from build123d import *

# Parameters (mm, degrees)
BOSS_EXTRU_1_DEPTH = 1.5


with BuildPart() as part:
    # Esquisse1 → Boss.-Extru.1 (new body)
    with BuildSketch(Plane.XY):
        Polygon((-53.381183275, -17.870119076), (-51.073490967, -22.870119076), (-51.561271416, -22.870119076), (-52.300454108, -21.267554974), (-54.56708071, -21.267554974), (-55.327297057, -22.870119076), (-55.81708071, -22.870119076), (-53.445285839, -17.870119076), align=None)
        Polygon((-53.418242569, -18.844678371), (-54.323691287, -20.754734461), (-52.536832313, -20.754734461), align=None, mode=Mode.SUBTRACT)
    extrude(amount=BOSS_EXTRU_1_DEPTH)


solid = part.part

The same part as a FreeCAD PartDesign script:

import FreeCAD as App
import Part
import Sketcher

V = App.Vector


def add_polygon(sketch, points):
    """Adds a closed chain of lines whose ends are joined by coincident constraints."""
    first, n = sketch.GeometryCount, len(points)
    for a, b in zip(points, points[1:] + points[:1]):
        sketch.addGeometry(Part.LineSegment(App.Vector(*a, 0), App.Vector(*b, 0)), False)
    for i in range(n):
        sketch.addConstraint(Sketcher.Constraint("Coincident", first + i, 2, first + (i + 1) % n, 1))

doc = App.newDocument("Part")
body = doc.addObject("PartDesign::Body", "Body")

# Sketch on XY plane
sketch1 = body.newObject("Sketcher::SketchObject", "Sketch")
sketch1.AttachmentSupport = (doc.getObject("XY_Plane"), [""])
sketch1.MapMode = "FlatFace"
add_polygon(sketch1, [(-51.07, -22.87), (-53.38, -17.87), (-53.45, -17.87), (-55.82, -22.87), (-55.33, -22.87), (-54.57, -21.27), (-52.3, -21.27), (-51.56, -22.87)])  # lines 0-7
add_polygon(sketch1, [(-53.42, -18.84), (-52.54, -20.75), (-54.32, -20.75)])  # lines 8-10
sketch1.addConstraint(Sketcher.Constraint("Horizontal", 1))
sketch1.addConstraint(Sketcher.Constraint("Horizontal", 3))
sketch1.addConstraint(Sketcher.Constraint("Horizontal", 5))
sketch1.addConstraint(Sketcher.Constraint("Horizontal", 7))
sketch1.addConstraint(Sketcher.Constraint("Horizontal", 9))
sketch1.addConstraint(Sketcher.Constraint("Horizontal", 3, 2, 6, 2))
sketch1.addConstraint(Sketcher.Constraint("DistanceY", 2, 2, 1, 2, 5.0))
sketch1.addConstraint(Sketcher.Constraint("DistanceX", 2, 2, 4, 2, 1.25))
sketch1.addConstraint(Sketcher.Constraint("Distance", 10, 2.1138))
sketch1.addConstraint(Sketcher.Constraint("DistanceX", 7, 1, 7, 2, 0.48778))
sketch1.addConstraint(Sketcher.Constraint("DistanceX", 9, 2, 9, 1, 1.786859))
sketch1.addConstraint(Sketcher.Constraint("DistanceX", 1, 2, 1, 1, 0.064103))
sketch1.addConstraint(Sketcher.Constraint("DistanceX", 3, 1, 3, 2, 0.489784))
sketch1.addConstraint(Sketcher.Constraint("DistanceX", 5, 1, 5, 2, 2.266627))
sketch1.addConstraint(Sketcher.Constraint("DistanceY", 0, 2, -1, 1, 17.870119))
sketch1.addConstraint(Sketcher.Constraint("DistanceX", 2, 2, -1, 1, 55.817081))
sketch1.addConstraint(Sketcher.Constraint("DistanceX", 6, 2, -1, 1, 51.561271))
sketch1.addConstraint(Sketcher.Constraint("DistanceX", 9, 2, -1, 1, 54.323691))
sketch1.addConstraint(Sketcher.Constraint("DistanceY", 10, 2, -1, 1, 18.844678))
sketch1.addConstraint(Sketcher.Constraint("DistanceX", 3, 2, 1, 2, 1.882011))
sketch1.addConstraint(Sketcher.Constraint("DistanceY", 5, 2, 8, 2, 0.512821))
sketch1.addConstraint(Sketcher.Constraint("DistanceX", 10, 2, 0, 2, 0.037059))
pad1 = body.newObject("PartDesign::Pad", "Pad")
pad1.Profile = sketch1
pad1.Length = 1.5

doc.recompute()
